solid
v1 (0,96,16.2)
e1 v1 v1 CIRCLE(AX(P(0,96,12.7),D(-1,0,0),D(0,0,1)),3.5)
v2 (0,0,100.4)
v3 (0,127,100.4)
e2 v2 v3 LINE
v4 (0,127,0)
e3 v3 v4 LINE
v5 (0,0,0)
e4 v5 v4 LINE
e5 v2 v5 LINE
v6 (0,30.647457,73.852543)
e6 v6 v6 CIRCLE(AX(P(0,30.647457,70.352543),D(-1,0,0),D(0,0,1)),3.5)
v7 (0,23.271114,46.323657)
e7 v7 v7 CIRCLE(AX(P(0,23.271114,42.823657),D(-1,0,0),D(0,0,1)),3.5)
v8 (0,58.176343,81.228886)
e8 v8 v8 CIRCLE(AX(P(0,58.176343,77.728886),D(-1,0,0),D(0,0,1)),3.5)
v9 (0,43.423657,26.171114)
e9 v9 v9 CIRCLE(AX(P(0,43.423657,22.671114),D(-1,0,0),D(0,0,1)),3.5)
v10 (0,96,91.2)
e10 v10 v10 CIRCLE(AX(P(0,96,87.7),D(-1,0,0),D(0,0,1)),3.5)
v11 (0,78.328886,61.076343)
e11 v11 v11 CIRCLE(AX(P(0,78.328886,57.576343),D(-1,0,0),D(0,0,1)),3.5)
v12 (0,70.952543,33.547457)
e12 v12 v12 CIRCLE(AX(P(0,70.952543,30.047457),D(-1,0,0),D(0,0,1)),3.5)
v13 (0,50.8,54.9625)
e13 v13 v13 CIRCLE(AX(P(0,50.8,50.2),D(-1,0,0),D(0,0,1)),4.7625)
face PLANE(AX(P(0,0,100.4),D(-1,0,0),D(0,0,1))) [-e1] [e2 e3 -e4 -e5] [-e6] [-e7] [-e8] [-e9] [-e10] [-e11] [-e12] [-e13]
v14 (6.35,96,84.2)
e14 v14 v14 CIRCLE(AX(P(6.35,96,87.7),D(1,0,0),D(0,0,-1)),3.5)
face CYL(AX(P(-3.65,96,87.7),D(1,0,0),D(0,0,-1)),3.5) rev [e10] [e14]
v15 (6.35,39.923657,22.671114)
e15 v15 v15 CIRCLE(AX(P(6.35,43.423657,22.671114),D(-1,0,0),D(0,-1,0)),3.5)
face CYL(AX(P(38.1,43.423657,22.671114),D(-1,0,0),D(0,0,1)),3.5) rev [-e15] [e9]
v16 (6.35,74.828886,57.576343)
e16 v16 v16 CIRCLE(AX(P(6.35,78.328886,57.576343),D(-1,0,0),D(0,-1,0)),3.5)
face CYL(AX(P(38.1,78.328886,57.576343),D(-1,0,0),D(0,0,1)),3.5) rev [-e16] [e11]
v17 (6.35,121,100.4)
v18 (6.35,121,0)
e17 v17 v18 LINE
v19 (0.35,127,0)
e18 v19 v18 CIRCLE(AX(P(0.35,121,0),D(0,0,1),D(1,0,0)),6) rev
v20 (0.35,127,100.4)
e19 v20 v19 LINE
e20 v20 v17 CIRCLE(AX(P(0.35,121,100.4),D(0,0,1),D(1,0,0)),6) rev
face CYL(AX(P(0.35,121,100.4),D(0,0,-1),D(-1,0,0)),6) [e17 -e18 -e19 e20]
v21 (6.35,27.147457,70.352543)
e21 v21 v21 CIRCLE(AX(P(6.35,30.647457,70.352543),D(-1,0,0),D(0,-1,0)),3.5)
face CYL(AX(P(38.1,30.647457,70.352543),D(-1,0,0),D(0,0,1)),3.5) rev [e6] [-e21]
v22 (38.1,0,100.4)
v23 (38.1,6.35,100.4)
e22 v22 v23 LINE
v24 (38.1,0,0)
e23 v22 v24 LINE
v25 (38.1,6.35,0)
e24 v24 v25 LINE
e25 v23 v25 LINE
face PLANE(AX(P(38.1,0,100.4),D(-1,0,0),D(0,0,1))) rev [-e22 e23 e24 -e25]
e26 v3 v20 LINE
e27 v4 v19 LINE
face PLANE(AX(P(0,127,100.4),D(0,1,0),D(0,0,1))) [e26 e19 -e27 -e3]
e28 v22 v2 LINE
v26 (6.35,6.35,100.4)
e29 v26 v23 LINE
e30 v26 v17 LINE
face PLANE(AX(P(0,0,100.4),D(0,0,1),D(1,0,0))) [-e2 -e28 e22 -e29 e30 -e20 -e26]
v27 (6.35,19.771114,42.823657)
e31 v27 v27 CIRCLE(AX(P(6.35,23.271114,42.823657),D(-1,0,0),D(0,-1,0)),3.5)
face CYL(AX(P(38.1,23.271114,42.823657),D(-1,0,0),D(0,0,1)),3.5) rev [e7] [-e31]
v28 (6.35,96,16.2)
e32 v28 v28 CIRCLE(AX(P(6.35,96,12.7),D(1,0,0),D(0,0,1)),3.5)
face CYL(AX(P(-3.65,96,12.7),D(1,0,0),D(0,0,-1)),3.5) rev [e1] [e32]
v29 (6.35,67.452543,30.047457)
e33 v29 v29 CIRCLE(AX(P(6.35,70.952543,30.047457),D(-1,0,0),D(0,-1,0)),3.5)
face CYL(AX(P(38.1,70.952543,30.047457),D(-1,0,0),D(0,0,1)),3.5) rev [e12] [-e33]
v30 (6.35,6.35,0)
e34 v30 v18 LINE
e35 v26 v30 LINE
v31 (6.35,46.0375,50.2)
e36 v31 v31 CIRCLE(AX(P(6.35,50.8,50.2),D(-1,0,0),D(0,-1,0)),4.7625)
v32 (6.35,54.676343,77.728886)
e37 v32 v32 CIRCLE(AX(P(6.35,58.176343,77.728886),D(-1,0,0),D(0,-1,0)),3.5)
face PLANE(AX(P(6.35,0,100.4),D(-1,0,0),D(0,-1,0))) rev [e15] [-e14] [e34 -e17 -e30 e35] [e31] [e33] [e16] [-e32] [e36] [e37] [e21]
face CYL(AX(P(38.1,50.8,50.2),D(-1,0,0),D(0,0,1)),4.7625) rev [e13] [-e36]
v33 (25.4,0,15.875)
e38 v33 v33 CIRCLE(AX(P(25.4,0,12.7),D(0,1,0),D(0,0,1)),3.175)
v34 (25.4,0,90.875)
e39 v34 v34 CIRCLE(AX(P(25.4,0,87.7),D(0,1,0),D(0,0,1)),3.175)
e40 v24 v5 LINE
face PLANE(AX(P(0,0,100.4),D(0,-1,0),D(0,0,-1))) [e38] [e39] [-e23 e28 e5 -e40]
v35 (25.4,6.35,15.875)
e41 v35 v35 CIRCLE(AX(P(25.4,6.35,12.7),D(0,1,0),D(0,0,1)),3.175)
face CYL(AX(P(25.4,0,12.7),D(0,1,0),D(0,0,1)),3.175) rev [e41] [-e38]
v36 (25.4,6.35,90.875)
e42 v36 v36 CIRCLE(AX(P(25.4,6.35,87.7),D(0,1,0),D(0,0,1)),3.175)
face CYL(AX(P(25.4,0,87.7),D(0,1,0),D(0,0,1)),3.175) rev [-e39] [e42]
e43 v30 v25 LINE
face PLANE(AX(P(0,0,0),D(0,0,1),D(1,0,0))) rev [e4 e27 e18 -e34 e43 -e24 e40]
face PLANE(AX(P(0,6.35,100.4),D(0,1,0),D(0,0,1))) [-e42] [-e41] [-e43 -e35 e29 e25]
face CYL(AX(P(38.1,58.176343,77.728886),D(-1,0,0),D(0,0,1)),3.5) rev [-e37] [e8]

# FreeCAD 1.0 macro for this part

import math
import FreeCAD as App
import Part
import Sketcher
Q = App.Units.Quantity

doc = App.newDocument("Part")
body = doc.addObject("PartDesign::Body", "Body")

# Sketch on XY plane
sketch1 = body.newObject("Sketcher::SketchObject", "Sketch")
sketch1.AttachmentSupport = (doc.getObject("XY_Plane"), [""])
sketch1.MapMode = "FlatFace"
sketch1.addGeometry([
    Part.LineSegment(App.Vector(0, 0, 0), App.Vector(38.1, 0, 0)),  # 0
    Part.LineSegment(App.Vector(38.1, 0, 0), App.Vector(38.1, 6.35, 0)),  # 1
    Part.LineSegment(App.Vector(38.1, 6.35, 0), App.Vector(6.35, 6.35, 0)),  # 2
    Part.LineSegment(App.Vector(6.35, 6.35, 0), App.Vector(6.35, 121, 0)),  # 3
    Part.ArcOfCircle(Part.Circle(App.Vector(0.35, 121, 0), App.Vector(0, 0, 1), 6), math.radians(0), math.radians(90)),  # 4
    Part.LineSegment(App.Vector(0.35, 127, 0), App.Vector(0, 127, 0)),  # 5
    Part.LineSegment(App.Vector(0, 127, 0), App.Vector(0, 0, 0)),  # 6
], False)
sketch1.addConstraint([
    Sketcher.Constraint("Coincident", 0, 2, 1, 1),
    Sketcher.Constraint("Coincident", 1, 2, 2, 1),
    Sketcher.Constraint("Coincident", 2, 2, 3, 1),
    Sketcher.Constraint("Tangent", 3, 2, 4, 1),
    Sketcher.Constraint("Tangent", 4, 2, 5, 1),
    Sketcher.Constraint("Coincident", 5, 2, 6, 1),
    Sketcher.Constraint("Coincident", 6, 2, 0, 1),
    Sketcher.Constraint("Horizontal", 0),
    Sketcher.Constraint("Vertical", 1),
    Sketcher.Constraint("Horizontal", 2),
    Sketcher.Constraint("Vertical", 3),
    Sketcher.Constraint("Horizontal", 5),
    Sketcher.Constraint("Vertical", 6),
    Sketcher.Constraint("Coincident", 6, 2, -1, 1),
    Sketcher.Constraint("Radius", 4, Q("6 mm")),
    Sketcher.Constraint("DistanceY", 6, 2, 6, 1, Q("127 mm")),
    Sketcher.Constraint("DistanceX", 0, 1, 0, 2, Q("38.1 mm")),
    Sketcher.Constraint("DistanceX", 2, 2, 2, 1, Q("31.75 mm")),
    Sketcher.Constraint("DistanceY", 1, 1, 1, 2, Q("6.35 mm")),
])
pad1 = body.newObject("PartDesign::Pad", "Pad")
pad1.Profile = sketch1
pad1.Length = 100.4

# Sketch on YZ plane
sketch2 = body.newObject("Sketcher::SketchObject", "Sketch001")
sketch2.AttachmentSupport = (doc.getObject("YZ_Plane"), [""])
sketch2.MapMode = "FlatFace"
sketch2.addGeometry([
    Part.Circle(App.Vector(50.8, 50.2, 0), App.Vector(0, 0, 1), 4.7625),  # 0
    Part.Circle(App.Vector(78.328886, 57.576343, 0), App.Vector(0, 0, 1), 3.5),  # 1
    Part.Circle(App.Vector(70.952543, 30.047457, 0), App.Vector(0, 0, 1), 3.5),  # 2
    Part.Circle(App.Vector(43.423657, 22.671114, 0), App.Vector(0, 0, 1), 3.5),  # 3
    Part.Circle(App.Vector(23.271114, 42.823657, 0), App.Vector(0, 0, 1), 3.5),  # 4
    Part.Circle(App.Vector(30.647457, 70.352543, 0), App.Vector(0, 0, 1), 3.5),  # 5
    Part.Circle(App.Vector(58.176343, 77.728886, 0), App.Vector(0, 0, 1), 3.5),  # 6
], False)
sketch2.addConstraint([
    Sketcher.Constraint("Equal", 1, 2),
    Sketcher.Constraint("Equal", 2, 3),
    Sketcher.Constraint("Equal", 3, 4),
    Sketcher.Constraint("Equal", 4, 5),
    Sketcher.Constraint("Equal", 5, 6),
    Sketcher.Constraint("Diameter", 1, Q("7 mm")),
    Sketcher.Constraint("Diameter", 0, Q("9.525 mm")),
    Sketcher.Constraint("DistanceX", -1, 1, 0, 3, Q("50.8 mm")),
    Sketcher.Constraint("DistanceY", -1, 1, 0, 3, Q("50.2 mm")),
    Sketcher.Constraint("DistanceY", 2, 3, 4, 3, Q("12.7762 mm")),
    Sketcher.Constraint("DistanceY", 1, 3, 5, 3, Q("12.7762 mm")),
    Sketcher.Constraint("DistanceX", 5, 3, 3, 3, Q("12.7762 mm")),
    Sketcher.Constraint("DistanceX", 6, 3, 2, 3, Q("12.7762 mm")),
    Sketcher.Constraint("DistanceX", 3, 3, 1, 3, Q("34.905229 mm")),
    Sketcher.Constraint("DistanceY", 3, 3, 1, 3, Q("34.905229 mm")),
    Sketcher.Constraint("DistanceX", 4, 3, 2, 3, Q("47.681429 mm")),
    Sketcher.Constraint("DistanceY", 4, 3, 6, 3, Q("34.905229 mm")),
    Sketcher.Constraint("DistanceX", -1, 1, 1, 3, Q("78.328886 mm")),
    Sketcher.Constraint("DistanceY", -1, 1, 1, 3, Q("57.576343 mm")),
    Sketcher.Constraint("DistanceX", -1, 1, 2, 3, Q("70.952543 mm")),
    Sketcher.Constraint("DistanceY", -1, 1, 2, 3, Q("30.047457 mm")),
])
pocket1 = body.newObject("PartDesign::Pocket", "Pocket")
pocket1.Profile = sketch2
pocket1.Type = "ThroughAll"
pocket1.Midplane = True

# Sketch on XZ plane
sketch3 = body.newObject("Sketcher::SketchObject", "Sketch002")
sketch3.AttachmentSupport = (doc.getObject("XZ_Plane"), [""])
sketch3.MapMode = "FlatFace"
sketch3.AttachmentOffset = App.Placement(App.Vector(0, 0, -6.35), App.Rotation())
sketch3.addGeometry([
    Part.Circle(App.Vector(25.4, 12.7, 0), App.Vector(0, 0, 1), 3.175),
    Part.Circle(App.Vector(25.4, 87.7, 0), App.Vector(0, 0, 1), 3.175),
], False)
sketch3.addConstraint([
    Sketcher.Constraint("Equal", 0, 1),
    Sketcher.Constraint("Vertical", 0, 3, 1, 3),
    Sketcher.Constraint("Diameter", 0, Q("6.35 mm")),
    Sketcher.Constraint("DistanceY", 0, 3, 1, 3, Q("75 mm")),
    Sketcher.Constraint("DistanceX", -1, 1, 0, 3, Q("25.4 mm")),
    Sketcher.Constraint("DistanceY", -1, 1, 0, 3, Q("12.7 mm")),
])
pocket2 = body.newObject("PartDesign::Pocket", "Pocket001")
pocket2.Profile = sketch3
pocket2.Type = "ThroughAll"
pocket2.Reversed = True

# Sketch on YZ plane
sketch4 = body.newObject("Sketcher::SketchObject", "Sketch003")
sketch4.AttachmentSupport = (doc.getObject("YZ_Plane"), [""])
sketch4.MapMode = "FlatFace"
sketch4.AttachmentOffset = App.Placement(App.Vector(0, 0, 6.35), App.Rotation())
sketch4.addGeometry([
    Part.Circle(App.Vector(96, 87.7, 0), App.Vector(0, 0, 1), 3.5),
    Part.Circle(App.Vector(96, 12.7, 0), App.Vector(0, 0, 1), 3.5),
], False)
sketch4.addConstraint([
    Sketcher.Constraint("Equal", 0, 1),
    Sketcher.Constraint("Vertical", 0, 3, 1, 3),
    Sketcher.Constraint("Diameter", 0, Q("7 mm")),
    Sketcher.Constraint("DistanceX", -1, 1, 0, 3, Q("96 mm")),
    Sketcher.Constraint("DistanceY", 1, 3, 0, 3, Q("75 mm")),
    Sketcher.Constraint("DistanceY", -1, 1, 0, 3, Q("87.7 mm")),
])
pocket3 = body.newObject("PartDesign::Pocket", "Pocket002")
pocket3.Profile = sketch4
pocket3.Length = 10

doc.recompute()
